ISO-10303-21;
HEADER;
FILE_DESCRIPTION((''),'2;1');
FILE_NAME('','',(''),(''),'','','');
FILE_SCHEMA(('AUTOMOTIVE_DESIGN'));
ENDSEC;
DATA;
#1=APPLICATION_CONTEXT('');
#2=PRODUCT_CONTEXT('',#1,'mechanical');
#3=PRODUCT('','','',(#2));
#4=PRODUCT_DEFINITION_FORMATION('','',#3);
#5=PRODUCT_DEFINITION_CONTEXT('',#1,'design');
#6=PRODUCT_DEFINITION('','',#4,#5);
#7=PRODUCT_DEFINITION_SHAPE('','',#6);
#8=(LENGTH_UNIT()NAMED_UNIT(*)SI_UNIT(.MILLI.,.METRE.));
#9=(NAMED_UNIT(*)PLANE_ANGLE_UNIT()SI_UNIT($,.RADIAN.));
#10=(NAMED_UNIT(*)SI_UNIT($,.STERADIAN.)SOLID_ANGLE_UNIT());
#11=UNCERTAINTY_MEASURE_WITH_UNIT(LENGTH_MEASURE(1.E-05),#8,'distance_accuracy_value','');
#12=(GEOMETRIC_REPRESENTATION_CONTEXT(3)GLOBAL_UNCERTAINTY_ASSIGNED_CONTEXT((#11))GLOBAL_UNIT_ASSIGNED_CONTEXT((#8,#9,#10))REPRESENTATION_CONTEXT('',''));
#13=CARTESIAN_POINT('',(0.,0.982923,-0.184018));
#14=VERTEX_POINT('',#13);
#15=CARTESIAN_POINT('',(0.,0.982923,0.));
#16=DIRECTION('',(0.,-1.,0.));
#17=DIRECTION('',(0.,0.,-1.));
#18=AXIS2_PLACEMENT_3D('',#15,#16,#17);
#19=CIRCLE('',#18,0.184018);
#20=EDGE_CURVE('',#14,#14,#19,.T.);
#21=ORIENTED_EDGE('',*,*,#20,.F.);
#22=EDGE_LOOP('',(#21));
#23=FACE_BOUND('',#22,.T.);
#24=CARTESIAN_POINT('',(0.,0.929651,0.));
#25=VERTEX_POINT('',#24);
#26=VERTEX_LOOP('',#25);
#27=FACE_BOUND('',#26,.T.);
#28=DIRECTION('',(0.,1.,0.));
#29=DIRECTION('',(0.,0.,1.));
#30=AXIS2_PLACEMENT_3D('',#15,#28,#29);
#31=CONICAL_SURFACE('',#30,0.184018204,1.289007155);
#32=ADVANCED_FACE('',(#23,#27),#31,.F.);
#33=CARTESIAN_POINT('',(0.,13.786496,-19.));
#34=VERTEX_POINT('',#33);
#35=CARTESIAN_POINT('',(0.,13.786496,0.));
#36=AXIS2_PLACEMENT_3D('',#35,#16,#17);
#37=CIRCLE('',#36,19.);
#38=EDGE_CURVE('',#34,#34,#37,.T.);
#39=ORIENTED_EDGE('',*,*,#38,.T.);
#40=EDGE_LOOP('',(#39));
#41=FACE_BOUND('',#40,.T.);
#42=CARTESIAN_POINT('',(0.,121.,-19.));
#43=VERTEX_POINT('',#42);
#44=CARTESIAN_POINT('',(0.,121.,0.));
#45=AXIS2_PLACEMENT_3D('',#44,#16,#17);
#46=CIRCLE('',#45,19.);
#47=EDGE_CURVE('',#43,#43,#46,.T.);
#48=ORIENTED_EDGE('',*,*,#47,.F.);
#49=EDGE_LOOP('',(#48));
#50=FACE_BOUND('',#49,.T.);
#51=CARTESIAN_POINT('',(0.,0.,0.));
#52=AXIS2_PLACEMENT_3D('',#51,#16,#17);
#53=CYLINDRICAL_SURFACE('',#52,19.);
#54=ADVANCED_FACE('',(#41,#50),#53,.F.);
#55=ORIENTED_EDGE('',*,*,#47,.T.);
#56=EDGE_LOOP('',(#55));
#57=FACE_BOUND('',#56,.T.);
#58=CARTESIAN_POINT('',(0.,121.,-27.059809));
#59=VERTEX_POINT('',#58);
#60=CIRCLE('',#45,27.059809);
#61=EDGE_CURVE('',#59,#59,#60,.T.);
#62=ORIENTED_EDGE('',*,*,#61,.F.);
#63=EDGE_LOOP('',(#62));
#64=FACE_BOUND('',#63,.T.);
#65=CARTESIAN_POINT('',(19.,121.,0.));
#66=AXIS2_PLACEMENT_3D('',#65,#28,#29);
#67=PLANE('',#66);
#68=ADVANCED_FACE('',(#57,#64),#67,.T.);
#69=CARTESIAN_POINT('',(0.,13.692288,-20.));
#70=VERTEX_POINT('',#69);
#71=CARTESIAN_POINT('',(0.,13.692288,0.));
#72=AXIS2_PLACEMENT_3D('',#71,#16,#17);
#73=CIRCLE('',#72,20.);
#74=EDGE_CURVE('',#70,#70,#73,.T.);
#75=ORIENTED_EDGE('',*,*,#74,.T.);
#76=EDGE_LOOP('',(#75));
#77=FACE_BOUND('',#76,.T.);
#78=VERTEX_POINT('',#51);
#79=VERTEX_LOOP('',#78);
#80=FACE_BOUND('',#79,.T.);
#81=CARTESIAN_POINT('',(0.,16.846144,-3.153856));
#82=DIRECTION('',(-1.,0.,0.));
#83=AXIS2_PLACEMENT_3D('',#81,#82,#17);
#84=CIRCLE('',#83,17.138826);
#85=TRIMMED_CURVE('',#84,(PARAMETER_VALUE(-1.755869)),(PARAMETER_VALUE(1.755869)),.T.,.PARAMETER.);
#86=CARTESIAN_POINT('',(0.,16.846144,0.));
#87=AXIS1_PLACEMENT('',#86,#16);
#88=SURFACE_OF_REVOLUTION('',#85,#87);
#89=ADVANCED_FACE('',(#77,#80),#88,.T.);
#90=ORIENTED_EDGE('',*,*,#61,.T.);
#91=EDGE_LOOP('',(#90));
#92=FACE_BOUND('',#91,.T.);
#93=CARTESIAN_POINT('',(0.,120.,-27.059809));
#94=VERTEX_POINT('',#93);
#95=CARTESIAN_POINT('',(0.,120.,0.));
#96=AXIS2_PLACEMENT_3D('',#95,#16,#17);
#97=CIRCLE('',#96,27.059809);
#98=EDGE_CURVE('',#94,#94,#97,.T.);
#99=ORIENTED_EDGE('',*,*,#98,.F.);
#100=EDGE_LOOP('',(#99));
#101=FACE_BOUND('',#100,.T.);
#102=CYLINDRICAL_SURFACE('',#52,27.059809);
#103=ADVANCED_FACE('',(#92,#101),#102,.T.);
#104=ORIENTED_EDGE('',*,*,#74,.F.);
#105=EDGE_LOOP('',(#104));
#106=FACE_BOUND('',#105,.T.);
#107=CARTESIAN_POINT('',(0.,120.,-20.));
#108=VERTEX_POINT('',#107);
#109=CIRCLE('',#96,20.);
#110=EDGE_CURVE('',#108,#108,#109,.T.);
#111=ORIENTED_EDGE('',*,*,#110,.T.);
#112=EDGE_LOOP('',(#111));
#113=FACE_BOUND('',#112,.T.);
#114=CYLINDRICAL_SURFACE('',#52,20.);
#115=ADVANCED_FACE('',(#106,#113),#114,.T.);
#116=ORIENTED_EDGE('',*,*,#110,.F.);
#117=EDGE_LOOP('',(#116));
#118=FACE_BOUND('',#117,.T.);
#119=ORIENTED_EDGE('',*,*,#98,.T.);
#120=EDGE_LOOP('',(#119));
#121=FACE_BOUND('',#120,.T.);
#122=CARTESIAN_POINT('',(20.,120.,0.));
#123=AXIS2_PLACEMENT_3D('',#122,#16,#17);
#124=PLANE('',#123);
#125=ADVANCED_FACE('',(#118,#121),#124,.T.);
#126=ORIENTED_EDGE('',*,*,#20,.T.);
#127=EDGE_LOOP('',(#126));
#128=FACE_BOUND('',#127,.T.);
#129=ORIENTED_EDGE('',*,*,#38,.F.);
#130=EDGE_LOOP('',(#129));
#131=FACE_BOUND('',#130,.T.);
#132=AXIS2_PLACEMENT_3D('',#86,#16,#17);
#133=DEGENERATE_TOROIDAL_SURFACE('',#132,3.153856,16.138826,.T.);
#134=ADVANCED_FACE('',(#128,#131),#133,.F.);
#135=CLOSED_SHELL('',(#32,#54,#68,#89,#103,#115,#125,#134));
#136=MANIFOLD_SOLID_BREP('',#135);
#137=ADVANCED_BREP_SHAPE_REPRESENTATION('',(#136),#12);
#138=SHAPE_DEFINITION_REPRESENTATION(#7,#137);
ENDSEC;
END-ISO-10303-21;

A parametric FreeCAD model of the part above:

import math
import FreeCAD as App
import Part
import Sketcher
from FreeCAD import Vector

doc = App.newDocument("Part")
params = doc.addObject("Spreadsheet::Sheet", "Params")
for row, (alias, value) in enumerate([
    ("sketch1_height", "1 mm"),
    ("revolution_angle", "360 deg"),
], start=1):
    params.set(f"A{row}", alias)
    params.set(f"B{row}", "=" + value)
    params.setAlias(f"B{row}", alias)

body = doc.addObject("PartDesign::Body", "Body")

# Sketch on XY plane
sketch1 = body.newObject("Sketcher::SketchObject", "Sketch")
sketch1.AttachmentSupport = (doc.getObject("XY_Plane"), [""])
sketch1.MapMode = "FlatFace"
sketch1.addGeometry([
    Part.LineSegment(Vector(20, 13.69, 0), Vector(20, 120, 0)),  # 0
    Part.LineSegment(Vector(20, 120, 0), Vector(27.06, 120, 0)),  # 1
    Part.LineSegment(Vector(27.06, 120, 0), Vector(27.06, 121, 0)),  # 2
    Part.LineSegment(Vector(27.06, 121, 0), Vector(19, 121, 0)),  # 3
    Part.LineSegment(Vector(19, 121, 0), Vector(19, 13.79, 0)),  # 4
    Part.ArcOfCircle(Part.Circle(Vector(3.15, 16.85, 0), Vector(0, 0, 1), 16.14), math.radians(-101), math.radians(-11)),  # 5
    Part.LineSegment(Vector(0.18, 0.98, 0), Vector(0, 0.93, 0)),  # 6
    Part.LineSegment(Vector(0, 0.93, 0), Vector(0, 0, 0)),  # 7
    Part.ArcOfCircle(Part.Circle(Vector(3.15, 16.85, 0), Vector(0, 0, 1), 17.14), math.radians(-101), math.radians(-11)),  # 8
], False)
sketch1.addConstraint([
    Sketcher.Constraint("Coincident", 0, 2, 1, 1),
    Sketcher.Constraint("Coincident", 1, 2, 2, 1),
    Sketcher.Constraint("Coincident", 2, 2, 3, 1),
    Sketcher.Constraint("Coincident", 3, 2, 4, 1),
    Sketcher.Constraint("Coincident", 4, 2, 5, 2),
    Sketcher.Constraint("Coincident", 5, 1, 6, 1),
    Sketcher.Constraint("Coincident", 6, 2, 7, 1),
    Sketcher.Constraint("Coincident", 7, 2, 8, 1),
    Sketcher.Constraint("Coincident", 8, 2, 0, 1),
    Sketcher.Constraint("Vertical", 0),
    Sketcher.Constraint("Horizontal", 1),
    Sketcher.Constraint("Vertical", 2),
    Sketcher.Constraint("Horizontal", 3),
    Sketcher.Constraint("Vertical", 4),
    Sketcher.Constraint("Vertical", 7),
    Sketcher.Constraint("Coincident", 7, 2, -1, 1),
    Sketcher.Constraint("Coincident", 8, 3, 5, 3),
    Sketcher.Constraint("DistanceY", 2, 1, 2, 2, 1.0),
    Sketcher.Constraint("DistanceX", -1, 1, 0, 2, 20.0),
    Sketcher.Constraint("DistanceY", -1, 1, 0, 2, 120.0),
    Sketcher.Constraint("DistanceX", -1, 1, 3, 2, 19.0),
    Sketcher.Constraint("Radius", 5, 16.138826),
    Sketcher.Constraint("Radius", 8, 17.138826),
    Sketcher.Constraint("DistanceX", 1, 1, 1, 2, 7.059809),
    Sketcher.Constraint("DistanceY", 7, 2, 7, 1, 0.929651),
    Sketcher.Constraint("DistanceY", 0, 1, 0, 2, 106.307712),
    Sketcher.Constraint("DistanceX", -1, 1, 5, 1, 0.184018),
])
sketch1.setExpression("Constraints[17]", "Params.sketch1_height")
revolution = body.newObject("PartDesign::Revolution", "Revolution")
revolution.Profile = sketch1
revolution.ReferenceAxis = (sketch1, ["V_Axis"])
revolution.setExpression("Angle", "Params.revolution_angle")

doc.recompute()
